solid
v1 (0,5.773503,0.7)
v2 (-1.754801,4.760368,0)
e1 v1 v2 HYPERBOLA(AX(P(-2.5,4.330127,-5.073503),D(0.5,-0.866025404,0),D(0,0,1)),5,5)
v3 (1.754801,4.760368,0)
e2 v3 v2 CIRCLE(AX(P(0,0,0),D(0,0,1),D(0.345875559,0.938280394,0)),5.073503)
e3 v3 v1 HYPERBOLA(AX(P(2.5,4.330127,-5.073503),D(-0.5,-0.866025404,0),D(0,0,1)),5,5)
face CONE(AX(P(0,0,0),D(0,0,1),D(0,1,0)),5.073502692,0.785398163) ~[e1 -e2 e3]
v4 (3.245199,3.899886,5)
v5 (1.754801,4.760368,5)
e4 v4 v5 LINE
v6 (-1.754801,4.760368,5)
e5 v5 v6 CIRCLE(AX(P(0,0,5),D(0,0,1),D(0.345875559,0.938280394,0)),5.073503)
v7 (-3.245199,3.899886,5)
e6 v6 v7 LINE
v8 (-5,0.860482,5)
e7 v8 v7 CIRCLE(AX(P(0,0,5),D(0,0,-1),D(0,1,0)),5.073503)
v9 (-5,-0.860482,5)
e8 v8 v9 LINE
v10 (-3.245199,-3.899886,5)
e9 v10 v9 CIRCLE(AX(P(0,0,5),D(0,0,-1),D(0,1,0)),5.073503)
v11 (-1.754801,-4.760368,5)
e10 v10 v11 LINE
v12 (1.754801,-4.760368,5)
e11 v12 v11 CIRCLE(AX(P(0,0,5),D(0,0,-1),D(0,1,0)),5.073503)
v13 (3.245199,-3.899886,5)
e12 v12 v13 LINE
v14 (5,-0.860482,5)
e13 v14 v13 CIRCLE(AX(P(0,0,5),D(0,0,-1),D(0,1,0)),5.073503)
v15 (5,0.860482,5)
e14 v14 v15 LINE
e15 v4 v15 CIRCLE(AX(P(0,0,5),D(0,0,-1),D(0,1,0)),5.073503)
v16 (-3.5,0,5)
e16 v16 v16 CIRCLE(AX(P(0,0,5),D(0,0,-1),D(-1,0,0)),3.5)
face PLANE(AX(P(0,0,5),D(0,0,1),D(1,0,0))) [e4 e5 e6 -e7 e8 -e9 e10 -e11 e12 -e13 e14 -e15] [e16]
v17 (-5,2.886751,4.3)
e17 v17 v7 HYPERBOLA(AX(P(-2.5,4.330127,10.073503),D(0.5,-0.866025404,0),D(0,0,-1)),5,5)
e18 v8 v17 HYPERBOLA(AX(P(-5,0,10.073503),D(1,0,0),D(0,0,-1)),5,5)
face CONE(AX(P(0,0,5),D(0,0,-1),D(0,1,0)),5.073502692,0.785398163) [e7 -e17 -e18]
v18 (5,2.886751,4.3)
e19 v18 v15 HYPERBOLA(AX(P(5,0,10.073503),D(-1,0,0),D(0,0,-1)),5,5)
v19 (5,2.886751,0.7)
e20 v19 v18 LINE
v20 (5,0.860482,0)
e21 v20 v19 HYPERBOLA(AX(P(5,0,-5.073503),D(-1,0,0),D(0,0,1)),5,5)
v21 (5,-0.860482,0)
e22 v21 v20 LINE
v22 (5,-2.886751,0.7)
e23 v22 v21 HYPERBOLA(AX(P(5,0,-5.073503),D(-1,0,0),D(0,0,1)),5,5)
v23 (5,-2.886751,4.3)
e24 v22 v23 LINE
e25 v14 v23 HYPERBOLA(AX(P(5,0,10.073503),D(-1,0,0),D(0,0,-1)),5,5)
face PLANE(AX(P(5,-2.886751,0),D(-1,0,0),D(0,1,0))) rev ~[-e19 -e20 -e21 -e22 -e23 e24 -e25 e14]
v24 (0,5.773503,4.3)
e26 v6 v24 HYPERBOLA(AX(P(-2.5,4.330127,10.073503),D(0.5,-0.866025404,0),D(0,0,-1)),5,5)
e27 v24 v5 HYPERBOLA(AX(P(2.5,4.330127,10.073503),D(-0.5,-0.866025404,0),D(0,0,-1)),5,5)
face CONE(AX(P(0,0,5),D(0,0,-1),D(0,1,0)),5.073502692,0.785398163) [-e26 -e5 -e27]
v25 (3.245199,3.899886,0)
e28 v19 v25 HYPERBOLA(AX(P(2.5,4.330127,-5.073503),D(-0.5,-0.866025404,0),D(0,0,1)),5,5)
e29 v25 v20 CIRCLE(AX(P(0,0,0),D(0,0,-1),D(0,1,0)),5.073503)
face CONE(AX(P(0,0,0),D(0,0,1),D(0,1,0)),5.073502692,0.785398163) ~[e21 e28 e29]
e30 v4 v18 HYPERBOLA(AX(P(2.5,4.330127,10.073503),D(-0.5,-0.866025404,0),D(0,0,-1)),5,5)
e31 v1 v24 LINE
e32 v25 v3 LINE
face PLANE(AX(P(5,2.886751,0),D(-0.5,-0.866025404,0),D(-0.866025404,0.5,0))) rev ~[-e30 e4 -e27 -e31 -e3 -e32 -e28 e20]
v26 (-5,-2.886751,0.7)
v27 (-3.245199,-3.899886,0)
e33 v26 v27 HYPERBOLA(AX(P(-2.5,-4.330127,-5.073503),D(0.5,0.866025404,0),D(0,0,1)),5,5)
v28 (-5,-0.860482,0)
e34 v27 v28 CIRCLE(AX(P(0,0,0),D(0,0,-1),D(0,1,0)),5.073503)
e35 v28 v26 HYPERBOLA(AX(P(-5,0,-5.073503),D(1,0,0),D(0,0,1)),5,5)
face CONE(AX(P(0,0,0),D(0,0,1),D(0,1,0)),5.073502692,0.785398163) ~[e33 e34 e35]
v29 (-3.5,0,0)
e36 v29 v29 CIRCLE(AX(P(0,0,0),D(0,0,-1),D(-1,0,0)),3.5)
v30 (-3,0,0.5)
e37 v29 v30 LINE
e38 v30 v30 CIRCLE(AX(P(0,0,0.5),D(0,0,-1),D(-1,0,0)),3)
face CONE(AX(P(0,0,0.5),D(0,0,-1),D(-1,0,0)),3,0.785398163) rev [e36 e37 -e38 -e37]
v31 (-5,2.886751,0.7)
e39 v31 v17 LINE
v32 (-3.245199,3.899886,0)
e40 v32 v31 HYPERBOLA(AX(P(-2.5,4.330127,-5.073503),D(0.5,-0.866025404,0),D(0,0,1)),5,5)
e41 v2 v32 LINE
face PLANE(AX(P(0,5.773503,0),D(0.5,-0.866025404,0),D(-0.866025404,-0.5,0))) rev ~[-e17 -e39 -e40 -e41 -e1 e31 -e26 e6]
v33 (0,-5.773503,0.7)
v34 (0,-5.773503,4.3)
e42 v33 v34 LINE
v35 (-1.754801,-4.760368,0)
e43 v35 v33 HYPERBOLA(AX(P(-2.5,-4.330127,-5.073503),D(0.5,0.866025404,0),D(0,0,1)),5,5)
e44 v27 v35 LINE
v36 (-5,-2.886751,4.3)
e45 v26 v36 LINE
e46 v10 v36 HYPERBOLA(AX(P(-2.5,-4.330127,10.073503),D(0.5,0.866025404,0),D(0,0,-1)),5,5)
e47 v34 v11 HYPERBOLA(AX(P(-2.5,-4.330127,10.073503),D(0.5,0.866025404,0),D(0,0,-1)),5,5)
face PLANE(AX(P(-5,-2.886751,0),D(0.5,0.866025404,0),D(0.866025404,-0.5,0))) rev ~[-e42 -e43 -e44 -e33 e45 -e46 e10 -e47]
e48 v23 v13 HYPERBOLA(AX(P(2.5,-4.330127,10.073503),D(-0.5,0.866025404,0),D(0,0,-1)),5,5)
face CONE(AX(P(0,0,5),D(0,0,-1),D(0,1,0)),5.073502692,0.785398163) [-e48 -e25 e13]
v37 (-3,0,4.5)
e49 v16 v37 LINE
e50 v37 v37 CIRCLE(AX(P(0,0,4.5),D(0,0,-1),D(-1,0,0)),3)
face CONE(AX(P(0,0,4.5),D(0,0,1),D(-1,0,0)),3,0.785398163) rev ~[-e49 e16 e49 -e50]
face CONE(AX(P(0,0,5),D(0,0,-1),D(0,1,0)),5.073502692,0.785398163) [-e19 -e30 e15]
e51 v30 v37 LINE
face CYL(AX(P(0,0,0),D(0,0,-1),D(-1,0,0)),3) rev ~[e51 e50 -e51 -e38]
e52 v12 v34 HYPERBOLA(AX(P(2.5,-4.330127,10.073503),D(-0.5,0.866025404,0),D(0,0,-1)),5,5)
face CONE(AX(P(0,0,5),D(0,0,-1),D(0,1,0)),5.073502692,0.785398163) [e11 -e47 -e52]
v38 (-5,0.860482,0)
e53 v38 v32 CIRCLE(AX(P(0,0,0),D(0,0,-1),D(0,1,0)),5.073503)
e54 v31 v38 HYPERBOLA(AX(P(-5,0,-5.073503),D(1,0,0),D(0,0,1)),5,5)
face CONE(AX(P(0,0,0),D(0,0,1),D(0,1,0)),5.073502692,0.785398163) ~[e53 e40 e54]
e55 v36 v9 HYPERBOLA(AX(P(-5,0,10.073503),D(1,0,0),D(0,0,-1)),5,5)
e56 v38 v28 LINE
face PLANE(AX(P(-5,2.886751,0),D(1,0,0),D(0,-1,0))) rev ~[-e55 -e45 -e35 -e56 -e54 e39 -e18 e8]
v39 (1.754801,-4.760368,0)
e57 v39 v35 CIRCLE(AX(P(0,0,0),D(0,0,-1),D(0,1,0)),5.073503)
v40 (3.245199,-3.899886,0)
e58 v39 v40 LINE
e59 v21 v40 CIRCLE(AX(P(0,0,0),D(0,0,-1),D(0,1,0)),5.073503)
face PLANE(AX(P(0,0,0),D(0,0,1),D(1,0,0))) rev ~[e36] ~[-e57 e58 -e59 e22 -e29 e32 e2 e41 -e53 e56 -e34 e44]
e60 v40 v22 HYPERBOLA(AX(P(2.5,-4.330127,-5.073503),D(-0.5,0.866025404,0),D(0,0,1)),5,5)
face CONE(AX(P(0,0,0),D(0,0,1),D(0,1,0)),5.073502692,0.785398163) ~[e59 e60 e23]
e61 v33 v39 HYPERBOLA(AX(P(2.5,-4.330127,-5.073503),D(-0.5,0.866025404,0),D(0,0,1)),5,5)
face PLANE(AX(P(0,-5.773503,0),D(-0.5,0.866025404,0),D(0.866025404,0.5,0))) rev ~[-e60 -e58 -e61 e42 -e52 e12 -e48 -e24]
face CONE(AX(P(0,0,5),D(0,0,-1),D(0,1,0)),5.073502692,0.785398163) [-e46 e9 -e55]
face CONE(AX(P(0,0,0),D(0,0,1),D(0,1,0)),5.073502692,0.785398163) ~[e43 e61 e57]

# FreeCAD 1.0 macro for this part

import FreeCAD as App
import Part
import Sketcher

V = App.Vector
Q = App.Units.Quantity


def edges_at(feature, points):
    """Names of the edges that pass closest to the given points."""
    edges = feature.Shape.Edges
    near = lambda p: min(range(len(edges)), key=lambda i: edges[i].distToShape(Part.Vertex(*p))[0])
    return sorted({f"Edge{near(p) + 1}" for p in points})


def add_polygon(sketch, points):
    """Adds a closed chain of lines whose ends are joined by coincident constraints."""
    first, n = sketch.GeometryCount, len(points)
    for a, b in zip(points, points[1:] + points[:1]):
        sketch.addGeometry(Part.LineSegment(App.Vector(*a, 0), App.Vector(*b, 0)), False)
    for i in range(n):
        sketch.addConstraint(Sketcher.Constraint("Coincident", first + i, 2, first + (i + 1) % n, 1))

doc = App.newDocument("Part")
body = doc.addObject("PartDesign::Body", "Body")

# Sketch on XY plane
sketch1 = body.newObject("Sketcher::SketchObject", "Sketch")
sketch1.AttachmentSupport = (doc.getObject("XY_Plane"), [""])
sketch1.MapMode = "FlatFace"
add_polygon(sketch1, [(0, 6), (-5, 3), (-5, -3), (0, -6), (5, -3), (5, 3)])  # lines 0-5
sketch1.addConstraint(Sketcher.Constraint("Vertical", 1))
sketch1.addConstraint(Sketcher.Constraint("Vertical", 4))
sketch1.addConstraint(Sketcher.Constraint("Symmetric", 0, 2, 3, 2, -1, 1))
sketch1.addConstraint(Sketcher.Constraint("Symmetric", 2, 2, 5, 2, -1, 1))
sketch1.addConstraint(Sketcher.Constraint("PointOnObject", 2, 2, -2))
sketch1.addConstraint(Sketcher.Constraint("Parallel", 2, 5))
sketch1.addConstraint(Sketcher.Constraint("Horizontal", 1, 2, 3, 2))
sketch1.addConstraint(Sketcher.Constraint("Angle", 0, Q("-150 deg")))
sketch1.addConstraint(Sketcher.Constraint("DistanceX", 0, 2, -1, 1, Q("5 mm")))
sketch1.addConstraint(Sketcher.Constraint("DistanceY", 1, 2, 1, 1, Q("5.773503 mm")))
pad1 = body.newObject("PartDesign::Pad", "Pad")
pad1.Profile = sketch1
pad1.Length = 5

# Sketch on YZ plane
sketch2 = body.newObject("Sketcher::SketchObject", "Sketch001")
sketch2.AttachmentSupport = (doc.getObject("YZ_Plane"), [""])
sketch2.MapMode = "FlatFace"
add_polygon(sketch2, [(5.8, 5), (5.1, 5), (5.8, 4.3)])  # lines 0-2
add_polygon(sketch2, [(5.8, 0), (5.8, 0.7), (5.1, 0)])  # lines 3-5
sketch2.addConstraint(Sketcher.Constraint("Horizontal", 0))
sketch2.addConstraint(Sketcher.Constraint("Vertical", 2))
sketch2.addConstraint(Sketcher.Constraint("Vertical", 3))
sketch2.addConstraint(Sketcher.Constraint("Horizontal", 5))
sketch2.addConstraint(Sketcher.Constraint("PointOnObject", 4, 2, -1))
sketch2.addConstraint(Sketcher.Constraint("Perpendicular", 1, 4))
sketch2.addConstraint(Sketcher.Constraint("Vertical", 2, 2, 3, 2))
sketch2.addConstraint(Sketcher.Constraint("Vertical", 0, 2, 4, 2))
sketch2.addConstraint(Sketcher.Constraint("Equal", 5, 2))
sketch2.addConstraint(Sketcher.Constraint("DistanceX", 0, 2, 0, 1, Q("0.7 mm")))
sketch2.addConstraint(Sketcher.Constraint("DistanceY", -1, 1, 0, 2, Q("5 mm")))
sketch2.addConstraint(Sketcher.Constraint("DistanceX", -1, 1, 0, 2, Q("5.073503 mm")))
groove = body.newObject("PartDesign::Groove", "Groove")
groove.Profile = sketch2
groove.ReferenceAxis = (sketch2, ["V_Axis"])
groove.Angle = 360

# Sketch on XY plane
sketch3 = body.newObject("Sketcher::SketchObject", "Sketch002")
sketch3.AttachmentSupport = (doc.getObject("XY_Plane"), [""])
sketch3.MapMode = "FlatFace"
sketch3.addGeometry(Part.Circle(V(0, 0, 0), V(0, 0, 1), 3), False)
sketch3.addConstraint(Sketcher.Constraint("Coincident", 0, 3, -1, 1))
sketch3.addConstraint(Sketcher.Constraint("Diameter", 0, Q("6 mm")))
pocket1 = body.newObject("PartDesign::Pocket", "Pocket")
pocket1.Profile = sketch3
pocket1.Type = "ThroughAll"
pocket1.Reversed = True
doc.recompute()

chamfer = body.newObject("PartDesign::Chamfer", "Chamfer")
chamfer.Base = (pocket1, edges_at(pocket1, [(3, 0, 5), (3, 0, 0)]))
chamfer.Size = 0.5

doc.recompute()
